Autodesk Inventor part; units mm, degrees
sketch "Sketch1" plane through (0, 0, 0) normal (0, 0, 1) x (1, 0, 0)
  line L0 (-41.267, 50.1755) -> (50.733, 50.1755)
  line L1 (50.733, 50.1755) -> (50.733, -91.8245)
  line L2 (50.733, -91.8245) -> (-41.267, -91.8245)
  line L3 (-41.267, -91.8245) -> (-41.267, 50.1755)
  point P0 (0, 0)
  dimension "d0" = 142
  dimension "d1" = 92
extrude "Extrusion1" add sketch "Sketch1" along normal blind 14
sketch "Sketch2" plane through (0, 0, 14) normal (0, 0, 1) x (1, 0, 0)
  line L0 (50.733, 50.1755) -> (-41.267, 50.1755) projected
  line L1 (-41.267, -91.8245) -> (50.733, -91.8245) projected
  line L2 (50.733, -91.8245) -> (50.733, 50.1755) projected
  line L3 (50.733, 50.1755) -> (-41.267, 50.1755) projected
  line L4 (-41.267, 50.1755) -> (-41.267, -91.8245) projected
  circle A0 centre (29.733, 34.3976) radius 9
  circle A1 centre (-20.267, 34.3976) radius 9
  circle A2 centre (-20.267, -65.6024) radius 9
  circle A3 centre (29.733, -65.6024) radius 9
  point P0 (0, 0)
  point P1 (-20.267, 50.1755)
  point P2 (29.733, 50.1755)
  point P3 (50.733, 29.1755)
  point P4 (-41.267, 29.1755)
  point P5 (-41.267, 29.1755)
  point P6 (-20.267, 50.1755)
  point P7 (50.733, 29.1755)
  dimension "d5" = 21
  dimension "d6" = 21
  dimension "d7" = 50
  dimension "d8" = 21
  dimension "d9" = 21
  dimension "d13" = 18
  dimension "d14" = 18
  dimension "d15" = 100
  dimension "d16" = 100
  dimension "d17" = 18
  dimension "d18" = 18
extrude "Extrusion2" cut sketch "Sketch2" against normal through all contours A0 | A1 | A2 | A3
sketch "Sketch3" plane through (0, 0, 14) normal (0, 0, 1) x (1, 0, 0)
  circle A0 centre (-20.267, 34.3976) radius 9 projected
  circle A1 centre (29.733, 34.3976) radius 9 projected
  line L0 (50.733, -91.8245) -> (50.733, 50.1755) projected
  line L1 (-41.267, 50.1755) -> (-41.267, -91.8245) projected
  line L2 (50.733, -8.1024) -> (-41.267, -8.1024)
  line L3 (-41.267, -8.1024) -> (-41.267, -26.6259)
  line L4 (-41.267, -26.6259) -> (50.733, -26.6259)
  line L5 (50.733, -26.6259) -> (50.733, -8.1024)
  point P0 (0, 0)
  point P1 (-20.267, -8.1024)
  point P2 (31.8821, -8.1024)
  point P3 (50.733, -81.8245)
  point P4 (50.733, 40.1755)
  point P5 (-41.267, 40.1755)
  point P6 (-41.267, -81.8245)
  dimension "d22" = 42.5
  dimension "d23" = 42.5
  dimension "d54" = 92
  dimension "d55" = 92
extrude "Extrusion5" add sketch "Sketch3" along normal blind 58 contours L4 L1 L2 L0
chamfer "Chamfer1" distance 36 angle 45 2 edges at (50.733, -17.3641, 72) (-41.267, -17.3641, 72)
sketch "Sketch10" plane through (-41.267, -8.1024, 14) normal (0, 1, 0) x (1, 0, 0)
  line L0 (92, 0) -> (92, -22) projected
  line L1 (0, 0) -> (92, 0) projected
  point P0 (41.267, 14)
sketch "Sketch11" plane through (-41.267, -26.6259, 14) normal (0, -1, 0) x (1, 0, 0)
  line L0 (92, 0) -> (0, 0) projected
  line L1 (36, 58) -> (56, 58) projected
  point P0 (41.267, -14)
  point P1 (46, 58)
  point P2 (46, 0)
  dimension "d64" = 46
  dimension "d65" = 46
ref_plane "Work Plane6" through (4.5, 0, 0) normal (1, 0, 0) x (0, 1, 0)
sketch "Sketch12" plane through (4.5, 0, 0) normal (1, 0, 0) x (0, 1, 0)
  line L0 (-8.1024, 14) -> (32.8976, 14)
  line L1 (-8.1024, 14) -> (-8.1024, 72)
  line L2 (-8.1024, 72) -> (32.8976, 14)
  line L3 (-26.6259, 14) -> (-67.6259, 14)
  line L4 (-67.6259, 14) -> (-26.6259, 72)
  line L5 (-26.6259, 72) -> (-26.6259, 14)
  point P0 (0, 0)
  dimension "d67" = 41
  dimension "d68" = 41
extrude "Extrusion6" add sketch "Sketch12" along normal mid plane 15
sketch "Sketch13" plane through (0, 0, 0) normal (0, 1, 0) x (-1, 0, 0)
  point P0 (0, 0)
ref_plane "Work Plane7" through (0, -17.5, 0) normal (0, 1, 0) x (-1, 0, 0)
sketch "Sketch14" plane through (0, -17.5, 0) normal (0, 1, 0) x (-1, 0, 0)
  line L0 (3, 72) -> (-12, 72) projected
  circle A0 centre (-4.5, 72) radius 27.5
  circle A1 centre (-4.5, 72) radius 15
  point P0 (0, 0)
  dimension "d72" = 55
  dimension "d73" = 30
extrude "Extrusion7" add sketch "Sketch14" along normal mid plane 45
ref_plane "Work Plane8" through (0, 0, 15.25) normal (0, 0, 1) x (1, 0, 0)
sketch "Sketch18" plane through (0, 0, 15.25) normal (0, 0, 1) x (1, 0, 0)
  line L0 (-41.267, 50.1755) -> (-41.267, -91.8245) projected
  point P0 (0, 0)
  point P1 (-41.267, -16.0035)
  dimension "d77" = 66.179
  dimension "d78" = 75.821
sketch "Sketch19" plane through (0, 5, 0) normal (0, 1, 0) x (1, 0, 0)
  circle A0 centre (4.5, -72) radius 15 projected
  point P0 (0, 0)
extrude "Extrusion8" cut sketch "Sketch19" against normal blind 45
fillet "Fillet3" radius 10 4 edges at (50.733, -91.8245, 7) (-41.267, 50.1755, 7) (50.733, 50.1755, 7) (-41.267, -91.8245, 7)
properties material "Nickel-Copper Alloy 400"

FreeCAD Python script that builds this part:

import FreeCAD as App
import Part
import Sketcher


def edges_at(feature, points):
    """Names of the edges that pass closest to the given points."""
    edges = feature.Shape.Edges
    near = lambda p: min(range(len(edges)), key=lambda i: edges[i].distToShape(Part.Vertex(*p))[0])
    return sorted({f"Edge{near(p) + 1}" for p in points})


def add_polygon(sketch, points):
    """Adds a closed chain of lines whose ends are joined by coincident constraints."""
    first, n = sketch.GeometryCount, len(points)
    for a, b in zip(points, points[1:] + points[:1]):
        sketch.addGeometry(Part.LineSegment(App.Vector(*a, 0), App.Vector(*b, 0)), False)
    for i in range(n):
        sketch.addConstraint(Sketcher.Constraint("Coincident", first + i, 2, first + (i + 1) % n, 1))

doc = App.newDocument("Part")
body = doc.addObject("PartDesign::Body", "Body")

sketch1 = body.newObject("Sketcher::SketchObject", "Sketch")
sketch1.AttachmentSupport = (doc.getObject("XY_Plane"), [""])
sketch1.MapMode = "FlatFace"
add_polygon(sketch1, [(51, 50), (-41, 50), (-41, -92), (51, -92)])
sketch1.addConstraint([
    Sketcher.Constraint("Horizontal", 0),
    Sketcher.Constraint("Vertical", 1),
    Sketcher.Constraint("Horizontal", 2),
    Sketcher.Constraint("Vertical", 3),
    Sketcher.Constraint("DistanceX", 0, 2, 0, 1, 92.0),
    Sketcher.Constraint("DistanceY", 1, 2, 1, 1, 142.0),
    Sketcher.Constraint("DistanceX", 0, 2, -1, 1, 41.267),
    Sketcher.Constraint("DistanceY", -1, 1, 0, 2, 50.1755),
])
pad1 = body.newObject("PartDesign::Pad", "Pad")
pad1.Profile = sketch1
pad1.Length = 14

sketch2 = body.newObject("Sketcher::SketchObject", "Sketch001")
sketch2.AttachmentSupport = (doc.getObject("XY_Plane"), [""])
sketch2.MapMode = "FlatFace"
sketch2.AttachmentOffset = App.Placement(App.Vector(0, 0, 14), App.Rotation())
sketch2.addGeometry([
    Part.Circle(App.Vector(30, 34, 0), App.Vector(0, 0, 1), 9),
    Part.Circle(App.Vector(-20, 34, 0), App.Vector(0, 0, 1), 9),
    Part.Circle(App.Vector(-20, -66, 0), App.Vector(0, 0, 1), 9),
    Part.Circle(App.Vector(30, -66, 0), App.Vector(0, 0, 1), 9),
], False)
sketch2.addConstraint([
    Sketcher.Constraint("Equal", 0, 1),
    Sketcher.Constraint("Equal", 1, 2),
    Sketcher.Constraint("Equal", 2, 3),
    Sketcher.Constraint("Horizontal", 0, 3, 1, 3),
    Sketcher.Constraint("Horizontal", 2, 3, 3, 3),
    Sketcher.Constraint("Vertical", 1, 3, 2, 3),
    Sketcher.Constraint("Vertical", 0, 3, 3, 3),
    Sketcher.Constraint("Diameter", 0, 18.0),
    Sketcher.Constraint("DistanceX", 1, 3, 0, 3, 50.0),
    Sketcher.Constraint("DistanceY", 2, 3, 1, 3, 100.0),
    Sketcher.Constraint("DistanceX", -1, 1, 0, 3, 29.733),
    Sketcher.Constraint("DistanceY", -1, 1, 0, 3, 34.3976),
])
pocket1 = body.newObject("PartDesign::Pocket", "Pocket")
pocket1.Profile = sketch2
pocket1.Type = "ThroughAll"

sketch3 = body.newObject("Sketcher::SketchObject", "Sketch002")
sketch3.AttachmentSupport = (doc.getObject("XY_Plane"), [""])
sketch3.MapMode = "FlatFace"
sketch3.AttachmentOffset = App.Placement(App.Vector(0, 0, 14), App.Rotation())
add_polygon(sketch3, [(-41, -27), (51, -27), (51, -8), (-41, -8)])
sketch3.addConstraint([
    Sketcher.Constraint("Horizontal", 0),
    Sketcher.Constraint("Vertical", 1),
    Sketcher.Constraint("Horizontal", 2),
    Sketcher.Constraint("Vertical", 3),
    Sketcher.Constraint("DistanceX", 0, 1, 0, 2, 92.0),
    Sketcher.Constraint("DistanceY", 1, 1, 1, 2, 18.5235),
    Sketcher.Constraint("DistanceX", -1, 1, 0, 2, 50.733),
    Sketcher.Constraint("DistanceY", 0, 2, -1, 1, 26.626),
])
pad2 = body.newObject("PartDesign::Pad", "Pad001")
pad2.Profile = sketch3
pad2.Length = 58
doc.recompute()

chamfer = body.newObject("PartDesign::Chamfer", "Chamfer")
chamfer.Base = (pad2, edges_at(pad2, [(50.733, -17.364, 72), (-41.267, -17.364, 72)]))
chamfer.Size = 36

sketch4 = body.newObject("Sketcher::SketchObject", "Sketch003")
sketch4.AttachmentSupport = (doc.getObject("YZ_Plane"), [""])
sketch4.MapMode = "FlatFace"
sketch4.AttachmentOffset = App.Placement(App.Vector(0, 0, 4.5), App.Rotation())
add_polygon(sketch4, [(-8, 72), (-8, 14), (33, 14)])
add_polygon(sketch4, [(-68, 14), (-27, 14), (-27, 72)])
sketch4.addConstraint([
    Sketcher.Constraint("Vertical", 0),
    Sketcher.Constraint("Horizontal", 1),
    Sketcher.Constraint("Horizontal", 3),
    Sketcher.Constraint("Vertical", 4),
    Sketcher.Constraint("Horizontal", 1, 2, 3, 2),
    Sketcher.Constraint("Horizontal", 2, 2, 4, 2),
    Sketcher.Constraint("Equal", 1, 3),
    Sketcher.Constraint("DistanceX", 1, 1, 1, 2, 41.0),
    Sketcher.Constraint("DistanceY", 0, 2, 0, 1, 58.0),
    Sketcher.Constraint("DistanceY", -1, 1, 0, 2, 14.0),
    Sketcher.Constraint("DistanceX", 3, 2, -1, 1, 26.626),
    Sketcher.Constraint("DistanceX", 0, 2, -1, 1, 8.1024),
])
pad3 = body.newObject("PartDesign::Pad", "Pad002")
pad3.Profile = sketch4
pad3.Length = 15
pad3.Midplane = True

sketch5 = body.newObject("Sketcher::SketchObject", "Sketch004")
sketch5.AttachmentSupport = (doc.getObject("XZ_Plane"), [""])
sketch5.MapMode = "FlatFace"
sketch5.AttachmentOffset = App.Placement(App.Vector(0, 0, 17.5), App.Rotation())
sketch5.addGeometry([
    Part.Circle(App.Vector(4, 72, 0), App.Vector(0, 0, 1), 28),
    Part.Circle(App.Vector(4, 72, 0), App.Vector(0, 0, 1), 15),
], False)
sketch5.addConstraint([
    Sketcher.Constraint("Coincident", 1, 3, 0, 3),
    Sketcher.Constraint("Diameter", 0, 55.0),
    Sketcher.Constraint("Diameter", 1, 30.0),
    Sketcher.Constraint("DistanceY", -1, 1, 0, 3, 72.0),
    Sketcher.Constraint("DistanceX", -1, 1, 0, 3, 4.5),
])
pad4 = body.newObject("PartDesign::Pad", "Pad003")
pad4.Profile = sketch5
pad4.Length = 45
pad4.Midplane = True

sketch6 = body.newObject("Sketcher::SketchObject", "Sketch005")
sketch6.AttachmentSupport = (doc.getObject("XZ_Plane"), [""])
sketch6.MapMode = "FlatFace"
sketch6.AttachmentOffset = App.Placement(App.Vector(0, 0, -5), App.Rotation())
sketch6.addGeometry(Part.Circle(App.Vector(4, 72, 0), App.Vector(0, 0, 1), 15), False)
sketch6.addConstraint([
    Sketcher.Constraint("Diameter", 0, 30.0),
    Sketcher.Constraint("DistanceY", -1, 1, 0, 3, 72.0),
    Sketcher.Constraint("DistanceX", -1, 1, 0, 3, 4.5),
])
pocket2 = body.newObject("PartDesign::Pocket", "Pocket001")
pocket2.Profile = sketch6
pocket2.Length = 45
pocket2.Reversed = True
doc.recompute()

fillet = body.newObject("PartDesign::Fillet", "Fillet")
fillet.Base = (pocket2, edges_at(pocket2, [
    (50.733, -91.825, 7),
    (-41.267, 50.175, 7),
    (50.733, 50.175, 7),
    (-41.267, -91.825, 7),
]))
fillet.Radius = 10

doc.recompute()
